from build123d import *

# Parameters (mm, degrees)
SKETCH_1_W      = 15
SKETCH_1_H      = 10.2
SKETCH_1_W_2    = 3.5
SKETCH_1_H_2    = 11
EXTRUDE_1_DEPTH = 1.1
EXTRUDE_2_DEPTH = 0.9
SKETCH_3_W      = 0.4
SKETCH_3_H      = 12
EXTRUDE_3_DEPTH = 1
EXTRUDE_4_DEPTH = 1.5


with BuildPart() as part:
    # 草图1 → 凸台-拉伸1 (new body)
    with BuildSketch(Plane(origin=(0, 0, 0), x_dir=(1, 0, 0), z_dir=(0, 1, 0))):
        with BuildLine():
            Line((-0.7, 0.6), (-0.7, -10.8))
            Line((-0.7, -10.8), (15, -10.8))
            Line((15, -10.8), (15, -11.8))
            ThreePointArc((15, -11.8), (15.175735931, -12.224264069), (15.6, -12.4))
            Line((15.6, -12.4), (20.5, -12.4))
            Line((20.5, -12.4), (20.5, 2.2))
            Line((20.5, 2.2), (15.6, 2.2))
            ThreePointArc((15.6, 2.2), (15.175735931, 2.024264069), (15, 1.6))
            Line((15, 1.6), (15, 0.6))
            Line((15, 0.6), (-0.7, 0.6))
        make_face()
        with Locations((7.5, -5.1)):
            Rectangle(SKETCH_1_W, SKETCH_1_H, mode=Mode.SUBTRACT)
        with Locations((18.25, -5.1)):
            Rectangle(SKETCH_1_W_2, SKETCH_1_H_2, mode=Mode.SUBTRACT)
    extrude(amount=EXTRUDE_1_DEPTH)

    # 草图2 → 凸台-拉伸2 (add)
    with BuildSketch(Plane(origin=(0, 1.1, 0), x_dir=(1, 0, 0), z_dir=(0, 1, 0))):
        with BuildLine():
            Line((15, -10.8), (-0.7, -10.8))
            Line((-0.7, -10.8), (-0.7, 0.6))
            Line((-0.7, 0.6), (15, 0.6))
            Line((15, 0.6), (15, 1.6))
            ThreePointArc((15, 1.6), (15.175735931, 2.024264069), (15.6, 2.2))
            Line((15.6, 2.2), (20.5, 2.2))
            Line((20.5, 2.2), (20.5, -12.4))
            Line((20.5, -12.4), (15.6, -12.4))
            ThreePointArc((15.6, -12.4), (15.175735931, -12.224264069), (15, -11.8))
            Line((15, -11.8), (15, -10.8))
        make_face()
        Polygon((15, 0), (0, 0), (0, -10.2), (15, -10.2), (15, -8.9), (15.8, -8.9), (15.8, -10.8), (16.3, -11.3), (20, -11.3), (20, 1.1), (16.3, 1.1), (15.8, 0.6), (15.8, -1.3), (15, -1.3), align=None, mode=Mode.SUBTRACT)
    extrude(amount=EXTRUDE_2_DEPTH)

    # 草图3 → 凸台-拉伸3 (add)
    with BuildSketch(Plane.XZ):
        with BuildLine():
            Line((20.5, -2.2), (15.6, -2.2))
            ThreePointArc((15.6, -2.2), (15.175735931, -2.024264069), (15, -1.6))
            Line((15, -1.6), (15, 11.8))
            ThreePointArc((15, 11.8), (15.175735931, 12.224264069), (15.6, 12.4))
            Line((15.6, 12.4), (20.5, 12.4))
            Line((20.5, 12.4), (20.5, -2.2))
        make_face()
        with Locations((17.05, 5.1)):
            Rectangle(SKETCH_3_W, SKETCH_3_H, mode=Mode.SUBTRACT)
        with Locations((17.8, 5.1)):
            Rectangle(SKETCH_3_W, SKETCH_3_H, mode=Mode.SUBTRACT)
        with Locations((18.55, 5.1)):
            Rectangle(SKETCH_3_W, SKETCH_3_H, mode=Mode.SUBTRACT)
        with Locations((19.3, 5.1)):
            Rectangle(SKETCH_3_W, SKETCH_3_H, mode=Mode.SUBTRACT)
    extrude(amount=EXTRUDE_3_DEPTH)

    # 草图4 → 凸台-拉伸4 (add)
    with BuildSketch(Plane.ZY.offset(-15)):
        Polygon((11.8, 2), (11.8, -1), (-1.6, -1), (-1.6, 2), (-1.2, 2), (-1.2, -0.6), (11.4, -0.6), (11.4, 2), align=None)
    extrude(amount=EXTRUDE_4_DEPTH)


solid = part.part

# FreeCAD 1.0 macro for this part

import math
import FreeCAD as App
import Part
import Sketcher


def add_polygon(sketch, points):
    """Adds a closed chain of lines whose ends are joined by coincident constraints."""
    first, n = sketch.GeometryCount, len(points)
    for a, b in zip(points, points[1:] + points[:1]):
        sketch.addGeometry(Part.LineSegment(App.Vector(*a, 0), App.Vector(*b, 0)), False)
    for i in range(n):
        sketch.addConstraint(Sketcher.Constraint("Coincident", first + i, 2, first + (i + 1) % n, 1))

doc = App.newDocument("Part")
body = doc.addObject("PartDesign::Body", "Body")

# Sketch on XZ plane
sketch1 = body.newObject("Sketcher::SketchObject", "Sketch")
sketch1.AttachmentSupport = (doc.getObject("XZ_Plane"), [""])
sketch1.MapMode = "FlatFace"
sketch1.addGeometry(Part.LineSegment(App.Vector(-0.7, -0.6, 0), App.Vector(-0.7, 10.8, 0)), False)  # 0
sketch1.addGeometry(Part.LineSegment(App.Vector(-0.7, 10.8, 0), App.Vector(15, 10.8, 0)), False)  # 1
sketch1.addGeometry(Part.LineSegment(App.Vector(15, 10.8, 0), App.Vector(15, 11.8, 0)), False)  # 2
sketch1.addGeometry(Part.ArcOfCircle(Part.Circle(App.Vector(15.6, 11.8, 0), App.Vector(0, 0, 1), 0.6), math.radians(90), math.radians(180)), False)  # 3
sketch1.addGeometry(Part.LineSegment(App.Vector(15.6, 12.4, 0), App.Vector(20.5, 12.4, 0)), False)  # 4
sketch1.addGeometry(Part.LineSegment(App.Vector(20.5, 12.4, 0), App.Vector(20.5, -2.2, 0)), False)  # 5
sketch1.addGeometry(Part.LineSegment(App.Vector(20.5, -2.2, 0), App.Vector(15.6, -2.2, 0)), False)  # 6
sketch1.addGeometry(Part.ArcOfCircle(Part.Circle(App.Vector(15.6, -1.6, 0), App.Vector(0, 0, 1), 0.6), math.radians(180), math.radians(270)), False)  # 7
sketch1.addGeometry(Part.LineSegment(App.Vector(15, -1.6, 0), App.Vector(15, -0.6, 0)), False)  # 8
sketch1.addGeometry(Part.LineSegment(App.Vector(15, -0.6, 0), App.Vector(-0.7, -0.6, 0)), False)  # 9
add_polygon(sketch1, [(15, 10.2), (0, 10.2), (0, 0), (15, 0)])  # lines 10-13
add_polygon(sketch1, [(20, 10.6), (16.5, 10.6), (16.5, -0.4), (20, -0.4)])  # lines 14-17
sketch1.addConstraint([
    Sketcher.Constraint("Coincident", 0, 2, 1, 1),
    Sketcher.Constraint("Coincident", 1, 2, 2, 1),
    Sketcher.Constraint("Tangent", 2, 2, 3, 2),
    Sketcher.Constraint("Tangent", 3, 1, 4, 1),
    Sketcher.Constraint("Coincident", 4, 2, 5, 1),
    Sketcher.Constraint("Coincident", 5, 2, 6, 1),
    Sketcher.Constraint("Tangent", 6, 2, 7, 2),
    Sketcher.Constraint("Tangent", 7, 1, 8, 1),
    Sketcher.Constraint("Coincident", 8, 2, 9, 1),
    Sketcher.Constraint("Coincident", 9, 2, 0, 1),
    Sketcher.Constraint("Vertical", 0),
    Sketcher.Constraint("Horizontal", 1),
    Sketcher.Constraint("Vertical", 2),
    Sketcher.Constraint("Horizontal", 4),
    Sketcher.Constraint("Vertical", 5),
    Sketcher.Constraint("Horizontal", 6),
    Sketcher.Constraint("Vertical", 8),
    Sketcher.Constraint("Horizontal", 9),
    Sketcher.Constraint("Horizontal", 10),
    Sketcher.Constraint("Vertical", 11),
    Sketcher.Constraint("Horizontal", 12),
    Sketcher.Constraint("Vertical", 13),
    Sketcher.Constraint("Horizontal", 14),
    Sketcher.Constraint("Vertical", 15),
    Sketcher.Constraint("Horizontal", 16),
    Sketcher.Constraint("Vertical", 17),
    Sketcher.Constraint("Coincident", 11, 2, -1, 1),
    Sketcher.Constraint("Equal", 3, 7),
    Sketcher.Constraint("Vertical", 3, 3, 7, 3),
    Sketcher.Constraint("Vertical", 8, 2, 12, 2),
    Sketcher.Constraint("Equal", 2, 8),
    Sketcher.Constraint("Radius", 3, 0.6),
    Sketcher.Constraint("DistanceX", 10, 2, 10, 1, 15.0),
    Sketcher.Constraint("DistanceY", 2, 1, 2, 2, 1.0),
    Sketcher.Constraint("DistanceY", 15, 2, 15, 1, 11.0),
    Sketcher.Constraint("DistanceX", 1, 1, 1, 2, 15.7),
    Sketcher.Constraint("DistanceX", 4, 1, 4, 2, 4.9),
    Sketcher.Constraint("DistanceX", 14, 2, 14, 1, 3.5),
    Sketcher.Constraint("DistanceY", 0, 1, 0, 2, 11.4),
    Sketcher.Constraint("DistanceY", 11, 2, 11, 1, 10.2),
    Sketcher.Constraint("DistanceX", -1, 1, 16, 2, 20.0),
    Sketcher.Constraint("DistanceY", -1, 1, 3, 3, 11.8),
    Sketcher.Constraint("DistanceY", -1, 1, 14, 2, 10.6),
])
pad1 = body.newObject("PartDesign::Pad", "Pad")
pad1.Profile = sketch1
pad1.Length = 1.1
pad1.Reversed = True

# Sketch on XZ plane
sketch2 = body.newObject("Sketcher::SketchObject", "Sketch001")
sketch2.AttachmentSupport = (doc.getObject("XZ_Plane"), [""])
sketch2.MapMode = "FlatFace"
sketch2.AttachmentOffset = App.Placement(App.Vector(0, 0, -1.1), App.Rotation())
sketch2.addGeometry(Part.LineSegment(App.Vector(-0.7, 10.8, 0), App.Vector(15, 10.8, 0)), False)  # 0
sketch2.addGeometry(Part.LineSegment(App.Vector(15, 10.8, 0), App.Vector(15, 11.8, 0)), False)  # 1
sketch2.addGeometry(Part.ArcOfCircle(Part.Circle(App.Vector(15.6, 11.8, 0), App.Vector(0, 0, 1), 0.6), math.radians(90), math.radians(180)), False)  # 2
sketch2.addGeometry(Part.LineSegment(App.Vector(15.6, 12.4, 0), App.Vector(20.5, 12.4, 0)), False)  # 3
sketch2.addGeometry(Part.LineSegment(App.Vector(20.5, 12.4, 0), App.Vector(20.5, -2.2, 0)), False)  # 4
sketch2.addGeometry(Part.LineSegment(App.Vector(20.5, -2.2, 0), App.Vector(15.6, -2.2, 0)), False)  # 5
sketch2.addGeometry(Part.ArcOfCircle(Part.Circle(App.Vector(15.6, -1.6, 0), App.Vector(0, 0, 1), 0.6), math.radians(180), math.radians(270)), False)  # 6
sketch2.addGeometry(Part.LineSegment(App.Vector(15, -1.6, 0), App.Vector(15, -0.6, 0)), False)  # 7
sketch2.addGeometry(Part.LineSegment(App.Vector(15, -0.6, 0), App.Vector(-0.7, -0.6, 0)), False)  # 8
sketch2.addGeometry(Part.LineSegment(App.Vector(-0.7, -0.6, 0), App.Vector(-0.7, 10.8, 0)), False)  # 9
add_polygon(sketch2, [(15, 0), (15, 1.3), (15.8, 1.3), (15.8, -0.6), (16.3, -1.1), (20, -1.1), (20, 11.3), (16.3, 11.3), (15.8, 10.8), (15.8, 8.9), (15, 8.9), (15, 10.2), (0, 10.2), (0, 0)])  # lines 10-23
sketch2.addConstraint([
    Sketcher.Constraint("Coincident", 0, 2, 1, 1),
    Sketcher.Constraint("Tangent", 1, 2, 2, 2),
    Sketcher.Constraint("Tangent", 2, 1, 3, 1),
    Sketcher.Constraint("Coincident", 3, 2, 4, 1),
    Sketcher.Constraint("Coincident", 4, 2, 5, 1),
    Sketcher.Constraint("Tangent", 5, 2, 6, 2),
    Sketcher.Constraint("Tangent", 6, 1, 7, 1),
    Sketcher.Constraint("Coincident", 7, 2, 8, 1),
    Sketcher.Constraint("Coincident", 8, 2, 9, 1),
    Sketcher.Constraint("Coincident", 9, 2, 0, 1),
    Sketcher.Constraint("Horizontal", 0),
    Sketcher.Constraint("Vertical", 1),
    Sketcher.Constraint("Horizontal", 3),
    Sketcher.Constraint("Vertical", 4),
    Sketcher.Constraint("Horizontal", 5),
    Sketcher.Constraint("Vertical", 7),
    Sketcher.Constraint("Horizontal", 8),
    Sketcher.Constraint("Vertical", 9),
    Sketcher.Constraint("Vertical", 10),
    Sketcher.Constraint("Horizontal", 11),
    Sketcher.Constraint("Vertical", 12),
    Sketcher.Constraint("Horizontal", 14),
    Sketcher.Constraint("Vertical", 15),
    Sketcher.Constraint("Horizontal", 16),
    Sketcher.Constraint("Vertical", 18),
    Sketcher.Constraint("Horizontal", 19),
    Sketcher.Constraint("Vertical", 20),
    Sketcher.Constraint("Horizontal", 21),
    Sketcher.Constraint("Vertical", 22),
    Sketcher.Constraint("Horizontal", 23),
    Sketcher.Constraint("Coincident", 22, 2, -1, 1),
    Sketcher.Constraint("Equal", 2, 6),
    Sketcher.Constraint("Perpendicular", 13, 17),
    Sketcher.Constraint("Horizontal", 8, 2, 12, 2),
    Sketcher.Constraint("Horizontal", 9, 2, 17, 2),
    Sketcher.Constraint("Vertical", 2, 3, 6, 3),
    Sketcher.Constraint("Vertical", 7, 2, 10, 2),
    Sketcher.Constraint("Vertical", 13, 2, 16, 2),
    Sketcher.Constraint("Vertical", 12, 2, 17, 2),
    Sketcher.Constraint("Vertical", 10, 2, 19, 2),
    Sketcher.Constraint("Equal", 1, 7),
    Sketcher.Constraint("Equal", 12, 18),
    Sketcher.Constraint("Equal", 10, 20),
    Sketcher.Constraint("Equal", 13, 17),
    Sketcher.Constraint("Radius", 2, 0.6),
    Sketcher.Constraint("DistanceX", 21, 2, 21, 1, 15.0),
    Sketcher.Constraint("DistanceY", 1, 1, 1, 2, 1.0),
    Sketcher.Constraint("DistanceX", 0, 1, 0, 2, 15.7),
    Sketcher.Constraint("DistanceX", 3, 1, 3, 2, 4.9),
    Sketcher.Constraint("DistanceX", 11, 1, 11, 2, 0.8),
    Sketcher.Constraint("DistanceX", 14, 1, 14, 2, 3.7),
    Sketcher.Constraint("DistanceY", 4, 2, 4, 1, 14.6),
    Sketcher.Constraint("DistanceY", 10, 1, 10, 2, 1.3),
    Sketcher.Constraint("DistanceY", 12, 2, 12, 1, 1.9),
    Sketcher.Constraint("DistanceY", 15, 1, 15, 2, 12.4),
])
pad2 = body.newObject("PartDesign::Pad", "Pad001")
pad2.Profile = sketch2
pad2.Length = 0.9
pad2.Reversed = True

# Sketch on XZ plane
sketch3 = body.newObject("Sketcher::SketchObject", "Sketch002")
sketch3.AttachmentSupport = (doc.getObject("XZ_Plane"), [""])
sketch3.MapMode = "FlatFace"
sketch3.addGeometry(Part.LineSegment(App.Vector(15.6, -2.2, 0), App.Vector(20.5, -2.2, 0)), False)  # 0
sketch3.addGeometry(Part.LineSegment(App.Vector(20.5, -2.2, 0), App.Vector(20.5, 12.4, 0)), False)  # 1
sketch3.addGeometry(Part.LineSegment(App.Vector(20.5, 12.4, 0), App.Vector(15.6, 12.4, 0)), False)  # 2
sketch3.addGeometry(Part.ArcOfCircle(Part.Circle(App.Vector(15.6, 11.8, 0), App.Vector(0, 0, 1), 0.6), math.radians(90), math.radians(180)), False)  # 3
sketch3.addGeometry(Part.LineSegment(App.Vector(15, 11.8, 0), App.Vector(15, -1.6, 0)), False)  # 4
sketch3.addGeometry(Part.ArcOfCircle(Part.Circle(App.Vector(15.6, -1.6, 0), App.Vector(0, 0, 1), 0.6), math.radians(180), math.radians(270)), False)  # 5
add_polygon(sketch3, [(19.1, -0.9), (19.1, 11.1), (19.5, 11.1), (19.5, -0.9)])  # lines 6-9
add_polygon(sketch3, [(18.35, -0.9), (18.35, 11.1), (18.75, 11.1), (18.75, -0.9)])  # lines 10-13
add_polygon(sketch3, [(17.6, -0.9), (17.6, 11.1), (18, 11.1), (18, -0.9)])  # lines 14-17
add_polygon(sketch3, [(16.85, -0.9), (16.85, 11.1), (17.25, 11.1), (17.25, -0.9)])  # lines 18-21
sketch3.addConstraint([
    Sketcher.Constraint("Coincident", 0, 2, 1, 1),
    Sketcher.Constraint("Coincident", 1, 2, 2, 1),
    Sketcher.Constraint("Tangent", 2, 2, 3, 1),
    Sketcher.Constraint("Tangent", 3, 2, 4, 1),
    Sketcher.Constraint("Tangent", 4, 2, 5, 1),
    Sketcher.Constraint("Tangent", 5, 2, 0, 1),
    Sketcher.Constraint("Horizontal", 0),
    Sketcher.Constraint("Vertical", 1),
    Sketcher.Constraint("Horizontal", 2),
    Sketcher.Constraint("Vertical", 4),
    Sketcher.Constraint("Vertical", 6),
    Sketcher.Constraint("Horizontal", 7),
    Sketcher.Constraint("Vertical", 8),
    Sketcher.Constraint("Horizontal", 9),
    Sketcher.Constraint("Vertical", 10),
    Sketcher.Constraint("Horizontal", 11),
    Sketcher.Constraint("Vertical", 12),
    Sketcher.Constraint("Horizontal", 13),
    Sketcher.Constraint("Vertical", 14),
    Sketcher.Constraint("Horizontal", 15),
    Sketcher.Constraint("Vertical", 16),
    Sketcher.Constraint("Horizontal", 17),
    Sketcher.Constraint("Vertical", 18),
    Sketcher.Constraint("Horizontal", 19),
    Sketcher.Constraint("Vertical", 20),
    Sketcher.Constraint("Horizontal", 21),
    Sketcher.Constraint("Equal", 3, 5),
    Sketcher.Constraint("Horizontal", 7, 2, 10, 2),
    Sketcher.Constraint("Horizontal", 9, 2, 12, 2),
    Sketcher.Constraint("Horizontal", 11, 2, 14, 2),
    Sketcher.Constraint("Horizontal", 13, 2, 16, 2),
    Sketcher.Constraint("Horizontal", 15, 2, 18, 2),
    Sketcher.Constraint("Horizontal", 17, 2, 20, 2),
    Sketcher.Constraint("Equal", 9, 11),
    Sketcher.Constraint("Equal", 13, 15),
    Sketcher.Constraint("Equal", 17, 19),
    Sketcher.Constraint("Radius", 3, 0.6),
    Sketcher.Constraint("DistanceY", 6, 1, 6, 2, 12.0),
    Sketcher.Constraint("DistanceX", 0, 1, 0, 2, 4.9),
    Sketcher.Constraint("DistanceX", 7, 1, 7, 2, 0.4),
    Sketcher.Constraint("DistanceY", 1, 1, 1, 2, 14.6),
    Sketcher.Constraint("DistanceX", -1, 1, 3, 2, 15.0),
    Sketcher.Constraint("DistanceX", -1, 1, 15, 2, 18.0),
    Sketcher.Constraint("DistanceX", 7, 2, 1, 2, 1.0),
    Sketcher.Constraint("DistanceY", -1, 1, 3, 3, 11.8),
    Sketcher.Constraint("DistanceY", -1, 1, 6, 2, 11.1),
    Sketcher.Constraint("DistanceX", 18, 2, 10, 2, 1.5),
    Sketcher.Constraint("DistanceX", -1, 1, 10, 2, 18.35),
])
pad3 = body.newObject("PartDesign::Pad", "Pad002")
pad3.Profile = sketch3
pad3.Length = 1

# Sketch on YZ plane
sketch4 = body.newObject("Sketcher::SketchObject", "Sketch003")
sketch4.AttachmentSupport = (doc.getObject("YZ_Plane"), [""])
sketch4.MapMode = "FlatFace"
sketch4.AttachmentOffset = App.Placement(App.Vector(0, 0, 15), App.Rotation())
add_polygon(sketch4, [(-1, 11.8), (2, 11.8), (2, 11.4), (-0.6, 11.4), (-0.6, -1.2), (2, -1.2), (2, -1.6), (-1, -1.6)])  # lines 0-7
sketch4.addConstraint([
    Sketcher.Constraint("Horizontal", 0),
    Sketcher.Constraint("Vertical", 1),
    Sketcher.Constraint("Horizontal", 2),
    Sketcher.Constraint("Vertical", 3),
    Sketcher.Constraint("Horizontal", 4),
    Sketcher.Constraint("Vertical", 5),
    Sketcher.Constraint("Horizontal", 6),
    Sketcher.Constraint("Vertical", 7),
    Sketcher.Constraint("Vertical", 1, 2, 4, 2),
    Sketcher.Constraint("Equal", 1, 5),
    Sketcher.Constraint("DistanceX", 0, 1, 0, 2, 3.0),
    Sketcher.Constraint("DistanceX", 2, 2, 2, 1, 2.6),
    Sketcher.Constraint("DistanceY", 1, 2, 1, 1, 0.4),
    Sketcher.Constraint("DistanceY", 3, 2, 3, 1, 12.6),
    Sketcher.Constraint("DistanceX", -1, 1, 0, 2, 2.0),
    Sketcher.Constraint("DistanceY", -1, 1, 0, 2, 11.8),
])
pad4 = body.newObject("PartDesign::Pad", "Pad003")
pad4.Profile = sketch4
pad4.Length = 1.5
pad4.Reversed = True

doc.recompute()
